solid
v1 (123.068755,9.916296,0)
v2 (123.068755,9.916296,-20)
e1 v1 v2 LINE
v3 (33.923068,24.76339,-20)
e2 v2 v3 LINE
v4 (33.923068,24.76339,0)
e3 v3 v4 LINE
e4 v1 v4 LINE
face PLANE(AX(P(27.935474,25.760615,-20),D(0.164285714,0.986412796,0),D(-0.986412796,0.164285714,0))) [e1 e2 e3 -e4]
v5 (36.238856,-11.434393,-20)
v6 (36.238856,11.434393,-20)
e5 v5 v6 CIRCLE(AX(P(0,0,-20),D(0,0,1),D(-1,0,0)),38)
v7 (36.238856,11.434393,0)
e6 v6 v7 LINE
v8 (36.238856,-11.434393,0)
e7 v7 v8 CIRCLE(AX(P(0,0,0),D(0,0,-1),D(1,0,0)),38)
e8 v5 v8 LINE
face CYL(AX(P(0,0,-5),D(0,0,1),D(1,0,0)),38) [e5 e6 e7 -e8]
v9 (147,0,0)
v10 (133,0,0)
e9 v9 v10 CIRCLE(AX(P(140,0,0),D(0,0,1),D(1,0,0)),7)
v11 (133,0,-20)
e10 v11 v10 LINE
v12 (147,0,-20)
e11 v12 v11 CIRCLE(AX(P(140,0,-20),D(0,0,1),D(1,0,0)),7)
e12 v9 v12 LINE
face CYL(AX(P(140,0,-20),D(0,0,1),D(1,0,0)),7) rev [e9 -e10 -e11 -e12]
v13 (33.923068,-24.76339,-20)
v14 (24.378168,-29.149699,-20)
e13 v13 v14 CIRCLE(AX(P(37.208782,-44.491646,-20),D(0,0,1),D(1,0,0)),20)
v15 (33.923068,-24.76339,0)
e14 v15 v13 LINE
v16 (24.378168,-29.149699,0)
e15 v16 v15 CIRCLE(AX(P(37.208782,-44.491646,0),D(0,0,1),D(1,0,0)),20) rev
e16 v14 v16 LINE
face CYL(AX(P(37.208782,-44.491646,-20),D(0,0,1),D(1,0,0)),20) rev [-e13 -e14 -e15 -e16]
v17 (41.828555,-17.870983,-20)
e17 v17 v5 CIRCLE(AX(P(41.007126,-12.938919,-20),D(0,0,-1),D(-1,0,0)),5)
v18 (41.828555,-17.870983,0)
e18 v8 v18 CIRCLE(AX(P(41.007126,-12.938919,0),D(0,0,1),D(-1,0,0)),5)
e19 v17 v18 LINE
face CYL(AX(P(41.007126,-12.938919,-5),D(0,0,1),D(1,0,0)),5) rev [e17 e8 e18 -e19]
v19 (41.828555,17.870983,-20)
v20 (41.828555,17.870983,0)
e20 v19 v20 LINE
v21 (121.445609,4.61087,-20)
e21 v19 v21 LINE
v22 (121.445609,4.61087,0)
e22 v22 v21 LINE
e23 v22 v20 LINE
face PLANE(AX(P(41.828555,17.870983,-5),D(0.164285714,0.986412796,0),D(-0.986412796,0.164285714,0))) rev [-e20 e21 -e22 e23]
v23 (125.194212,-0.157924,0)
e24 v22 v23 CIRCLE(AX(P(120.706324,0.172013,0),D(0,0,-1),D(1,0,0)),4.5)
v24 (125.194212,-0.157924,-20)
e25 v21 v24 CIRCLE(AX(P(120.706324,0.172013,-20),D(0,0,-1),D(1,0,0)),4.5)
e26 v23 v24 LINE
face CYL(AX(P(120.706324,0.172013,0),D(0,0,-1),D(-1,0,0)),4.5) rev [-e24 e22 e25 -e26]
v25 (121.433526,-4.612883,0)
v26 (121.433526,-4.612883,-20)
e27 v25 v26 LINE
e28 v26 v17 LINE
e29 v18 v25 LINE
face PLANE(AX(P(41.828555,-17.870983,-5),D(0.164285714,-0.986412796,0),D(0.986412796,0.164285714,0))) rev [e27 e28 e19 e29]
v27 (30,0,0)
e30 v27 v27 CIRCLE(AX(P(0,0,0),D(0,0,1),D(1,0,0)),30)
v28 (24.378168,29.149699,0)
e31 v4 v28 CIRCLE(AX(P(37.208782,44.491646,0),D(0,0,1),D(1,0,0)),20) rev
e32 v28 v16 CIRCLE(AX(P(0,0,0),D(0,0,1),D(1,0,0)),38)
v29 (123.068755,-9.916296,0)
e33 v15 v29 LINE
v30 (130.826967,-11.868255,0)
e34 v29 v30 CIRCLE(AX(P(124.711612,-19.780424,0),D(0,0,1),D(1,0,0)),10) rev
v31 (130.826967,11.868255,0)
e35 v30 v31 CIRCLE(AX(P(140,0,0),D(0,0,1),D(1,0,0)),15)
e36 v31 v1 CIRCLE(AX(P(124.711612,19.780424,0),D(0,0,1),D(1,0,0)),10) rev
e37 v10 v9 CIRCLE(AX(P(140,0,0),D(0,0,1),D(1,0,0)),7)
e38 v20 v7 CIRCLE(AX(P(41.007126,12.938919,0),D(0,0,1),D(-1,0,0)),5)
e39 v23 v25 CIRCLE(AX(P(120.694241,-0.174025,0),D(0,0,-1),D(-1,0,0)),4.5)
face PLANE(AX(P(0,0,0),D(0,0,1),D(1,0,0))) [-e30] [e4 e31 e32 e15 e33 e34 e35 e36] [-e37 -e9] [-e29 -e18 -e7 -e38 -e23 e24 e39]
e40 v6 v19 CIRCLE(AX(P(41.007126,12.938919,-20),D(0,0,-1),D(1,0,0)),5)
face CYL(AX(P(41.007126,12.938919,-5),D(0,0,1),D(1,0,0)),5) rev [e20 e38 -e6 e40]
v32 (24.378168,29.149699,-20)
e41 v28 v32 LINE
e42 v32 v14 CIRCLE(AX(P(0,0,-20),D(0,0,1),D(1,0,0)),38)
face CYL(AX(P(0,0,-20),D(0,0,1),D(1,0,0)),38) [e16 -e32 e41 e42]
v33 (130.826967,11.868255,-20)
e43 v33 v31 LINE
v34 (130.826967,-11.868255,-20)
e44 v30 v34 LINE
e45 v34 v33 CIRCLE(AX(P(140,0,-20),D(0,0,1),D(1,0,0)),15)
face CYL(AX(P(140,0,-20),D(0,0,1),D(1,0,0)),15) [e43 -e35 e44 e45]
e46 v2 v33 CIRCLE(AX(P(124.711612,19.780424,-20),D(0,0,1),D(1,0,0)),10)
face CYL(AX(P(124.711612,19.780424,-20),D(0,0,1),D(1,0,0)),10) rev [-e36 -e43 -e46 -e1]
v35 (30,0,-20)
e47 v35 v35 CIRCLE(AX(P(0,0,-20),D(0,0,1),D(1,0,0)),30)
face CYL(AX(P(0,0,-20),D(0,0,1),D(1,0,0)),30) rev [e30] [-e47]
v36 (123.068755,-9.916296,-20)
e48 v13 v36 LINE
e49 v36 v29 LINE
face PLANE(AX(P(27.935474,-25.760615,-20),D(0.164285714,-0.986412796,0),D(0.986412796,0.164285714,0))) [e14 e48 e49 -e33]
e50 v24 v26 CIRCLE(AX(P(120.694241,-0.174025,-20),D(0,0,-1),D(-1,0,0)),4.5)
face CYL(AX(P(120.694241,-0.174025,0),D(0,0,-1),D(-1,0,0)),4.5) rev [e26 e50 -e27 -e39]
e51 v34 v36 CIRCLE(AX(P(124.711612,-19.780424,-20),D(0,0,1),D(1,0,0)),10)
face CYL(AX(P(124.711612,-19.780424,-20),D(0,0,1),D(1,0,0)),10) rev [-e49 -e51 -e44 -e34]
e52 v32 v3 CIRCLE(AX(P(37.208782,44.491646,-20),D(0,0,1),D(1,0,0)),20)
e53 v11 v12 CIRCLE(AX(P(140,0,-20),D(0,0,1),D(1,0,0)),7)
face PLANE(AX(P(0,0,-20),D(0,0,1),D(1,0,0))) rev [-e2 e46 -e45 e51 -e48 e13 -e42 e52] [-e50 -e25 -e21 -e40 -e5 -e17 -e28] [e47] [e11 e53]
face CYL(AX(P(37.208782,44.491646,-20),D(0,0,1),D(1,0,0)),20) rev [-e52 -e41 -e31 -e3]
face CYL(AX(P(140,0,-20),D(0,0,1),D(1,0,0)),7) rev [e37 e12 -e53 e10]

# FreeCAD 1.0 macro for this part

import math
import FreeCAD as App
import Part
import Sketcher

V = App.Vector


def edges_at(feature, points):
    """Names of the edges that pass closest to the given points."""
    edges = feature.Shape.Edges
    near = lambda p: min(range(len(edges)), key=lambda i: edges[i].distToShape(Part.Vertex(*p))[0])
    return sorted({f"Edge{near(p) + 1}" for p in points})

doc = App.newDocument("Part")
params = doc.addObject("Spreadsheet::Sheet", "Params")
for row, (alias, value) in enumerate([
    ("sketch1_diameter", "14 mm"),
    ("sketch1_diameter2", "60 mm"),
    ("sketch1_radius", "38 mm"),
    ("sketch1_radius2", "15 mm"),
    ("pad1_length", "20 mm"),
    ("fillet_radius", "10 mm"),
    ("fillet2_radius", "20 mm"),
    ("sketch2_radius", "5 mm"),
    ("sketch2_radius2", "38 mm"),
    ("sketch2_radius3", "4.5 mm"),
    ("pocket1_length", "5 mm"),
    ("sketch3_radius", "5 mm"),
    ("sketch3_radius2", "38 mm"),
    ("sketch3_radius3", "4.5 mm"),
], start=1):
    params.set(f"A{row}", alias)
    params.set(f"B{row}", "=" + value)
    params.setAlias(f"B{row}", alias)

body = doc.addObject("PartDesign::Body", "Body")

# Sketch on XY plane
sketch1 = doc.addObject("Sketcher::SketchObject", "Sketch")
body.addObject(sketch1)
sketch1.AttachmentSupport = (doc.XY_Plane, [""])
sketch1.MapMode = "FlatFace"
sketch1.addGeometry([
    Part.LineSegment(V(128.063755, 9.084386, 0), V(27.935474, 25.760615, 0)),  # 0
    Part.ArcOfCircle(Part.Circle(V(0, 0, 0), V(0, 0, 1), 38), math.radians(42.680611), math.radians(317.319389)),  # 1
    Part.LineSegment(V(27.935474, -25.760615, 0), V(128.063755, -9.084386, 0)),  # 2
    Part.ArcOfCircle(Part.Circle(V(140, 0, 0), V(0, 0, 1), 15), math.radians(-142.726118), math.radians(142.726118)),  # 3
    Part.Circle(V(140, 0, 0), V(0, 0, 1), 7),  # 4
    Part.Circle(V(0, 0, 0), V(0, 0, 1), 30),  # 5
], False)
sketch1.addConstraint([
    Sketcher.Constraint("Coincident", 0, 2, 1, 1),
    Sketcher.Constraint("Coincident", 1, 2, 2, 1),
    Sketcher.Constraint("Coincident", 2, 2, 3, 1),
    Sketcher.Constraint("Coincident", 3, 2, 0, 1),
    Sketcher.Constraint("Coincident", 1, 3, -1, 1),
    Sketcher.Constraint("Coincident", 5, 3, -1, 1),
    Sketcher.Constraint("Coincident", 4, 3, 3, 3),
    Sketcher.Constraint("Symmetric", 2, 2, 3, 2, -1),
    Sketcher.Constraint("Vertical", 0, 2, 1, 2),
    Sketcher.Constraint("Diameter", 4, 14.0),
    Sketcher.Constraint("Diameter", 5, 60.0),
    Sketcher.Constraint("Radius", 1, 38.0),
    Sketcher.Constraint("Radius", 3, 15.0),
    Sketcher.Constraint("DistanceX", -1, 1, 3, 3, 140.0),
    Sketcher.Constraint("DistanceY", 2, 2, 0, 2, 34.845001),
    Sketcher.Constraint("DistanceY", 1, 2, 0, 2, 51.521231),
])
sketch1.setExpression("Constraints[9]", "Params.sketch1_diameter")
sketch1.setExpression("Constraints[10]", "Params.sketch1_diameter2")
sketch1.setExpression("Constraints[11]", "Params.sketch1_radius")
sketch1.setExpression("Constraints[12]", "Params.sketch1_radius2")
pad1 = doc.addObject("PartDesign::Pad", "Pad")
body.addObject(pad1)
pad1.Profile = sketch1
pad1.setExpression("Length", "Params.pad1_length")
pad1.Reversed = True
doc.recompute()

fillet = doc.addObject("PartDesign::Fillet", "Fillet")
body.addObject(fillet)
fillet.Base = (pad1, edges_at(pad1, [(128.064, 9.084, -10), (128.064, -9.084, -10)]))
fillet.setExpression("Radius", "Params.fillet_radius")
doc.recompute()

fillet2 = doc.addObject("PartDesign::Fillet", "Fillet001")
body.addObject(fillet2)
fillet2.Base = (fillet, edges_at(fillet, [(27.935, 25.761, -10), (27.935, -25.761, -10)]))
fillet2.setExpression("Radius", "Params.fillet2_radius")

# Sketch on XY plane
sketch2 = doc.addObject("Sketcher::SketchObject", "Sketch001")
body.addObject(sketch2)
sketch2.AttachmentSupport = (doc.XY_Plane, [""])
sketch2.MapMode = "FlatFace"
sketch2.addGeometry([
    Part.LineSegment(V(121.046941, 4.677268, 0), V(41.828555, 17.870983, 0)),  # 0
    Part.ArcOfCircle(Part.Circle(V(41.007126, 12.938919, 0), V(0, 0, 1), 5), math.radians(80.544257), math.radians(197.511973)),  # 1
    Part.ArcOfCircle(Part.Circle(V(0, 0, 0), V(0, 0, 1), 38), math.radians(-17.511973), math.radians(17.511973)),  # 2
    Part.ArcOfCircle(Part.Circle(V(41.007126, -12.938919, 0), V(0, 0, 1), 5), math.radians(162.488027), math.radians(279.455743)),  # 3
    Part.LineSegment(V(41.828555, -17.870983, 0), V(121.071834, -4.673122, 0)),  # 4
    Part.ArcOfCircle(Part.Circle(V(120.332548, -0.234264, 0), V(0, 0, 1), 4.5), math.radians(-80.544257), math.radians(6.029349)),  # 5
    Part.ArcOfCircle(Part.Circle(V(120.307655, 0.23841, 0), V(0, 0, 1), 4.5), math.radians(-0.000054), math.radians(80.544257)),  # 6
], False)
sketch2.addConstraint([
    Sketcher.Constraint("Tangent", 0, 2, 1, 1),
    Sketcher.Constraint("Tangent", 1, 2, 2, 2),
    Sketcher.Constraint("Tangent", 2, 1, 3, 1),
    Sketcher.Constraint("Tangent", 3, 2, 4, 1),
    Sketcher.Constraint("Tangent", 4, 2, 5, 1),
    Sketcher.Constraint("Coincident", 5, 2, 6, 1),
    Sketcher.Constraint("Tangent", 6, 2, 0, 1),
    Sketcher.Constraint("Coincident", 2, 3, -1, 1),
    Sketcher.Constraint("Equal", 1, 3),
    Sketcher.Constraint("Equal", 5, 6),
    Sketcher.Constraint("Symmetric", 0, 2, 3, 2, -1),
    Sketcher.Constraint("Radius", 1, 5.0),
    Sketcher.Constraint("Radius", 2, 38.0),
    Sketcher.Constraint("Radius", 5, 4.5),
    Sketcher.Constraint("DistanceY", 3, 3, 0, 2, 30.809901),
    Sketcher.Constraint("DistanceX", 0, 2, 6, 3, 78.4791),
    Sketcher.Constraint("DistanceX", 1, 2, 0, 2, 5.589699),
    Sketcher.Constraint("DistanceX", -1, 1, 5, 3, 120.332548),
])
sketch2.setExpression("Constraints[11]", "Params.sketch2_radius")
sketch2.setExpression("Constraints[12]", "Params.sketch2_radius2")
sketch2.setExpression("Constraints[13]", "Params.sketch2_radius3")
pocket1 = doc.addObject("PartDesign::Pocket", "Pocket")
body.addObject(pocket1)
pocket1.Profile = sketch2
pocket1.setExpression("Length", "Params.pocket1_length")

# Sketch on XY plane
sketch3 = doc.addObject("Sketcher::SketchObject", "Sketch002")
body.addObject(sketch3)
sketch3.AttachmentSupport = (doc.XY_Plane, [""])
sketch3.MapMode = "FlatFace"
sketch3.AttachmentOffset = App.Placement(V(0, 0, -20), App.Rotation())
sketch3.addGeometry([
    Part.LineSegment(V(41.828555, 17.870983, 0), V(121.445609, 4.61087, 0)),  # 0
    Part.ArcOfCircle(Part.Circle(V(120.706324, 0.172013, 0), V(0, 0, 1), 4.5), math.radians(-4.204662), math.radians(80.544257)),  # 1
    Part.ArcOfCircle(Part.Circle(V(120.694241, -0.174025, 0), V(0, 0, 1), 4.5), math.radians(-80.544257), math.radians(0.204999)),  # 2
    Part.LineSegment(V(121.433526, -4.612883, 0), V(41.828555, -17.870983, 0)),  # 3
    Part.ArcOfCircle(Part.Circle(V(41.007126, -12.938919, 0), V(0, 0, 1), 5), math.radians(162.488027), math.radians(279.455743)),  # 4
    Part.ArcOfCircle(Part.Circle(V(0, 0, 0), V(0, 0, 1), 38), math.radians(-17.511973), math.radians(17.511973)),  # 5
    Part.ArcOfCircle(Part.Circle(V(41.007126, 12.938919, 0), V(0, 0, 1), 5), math.radians(80.544257), math.radians(197.511973)),  # 6
], False)
sketch3.addConstraint([
    Sketcher.Constraint("Tangent", 0, 2, 1, 2),
    Sketcher.Constraint("Coincident", 1, 1, 2, 2),
    Sketcher.Constraint("Tangent", 2, 1, 3, 1),
    Sketcher.Constraint("Tangent", 3, 2, 4, 2),
    Sketcher.Constraint("Tangent", 4, 1, 5, 1),
    Sketcher.Constraint("Tangent", 5, 2, 6, 2),
    Sketcher.Constraint("Tangent", 6, 1, 0, 1),
    Sketcher.Constraint("Coincident", 5, 3, -1, 1),
    Sketcher.Constraint("Equal", 1, 2),
    Sketcher.Constraint("Equal", 4, 6),
    Sketcher.Constraint("Symmetric", 3, 2, 6, 1, -1),
    Sketcher.Constraint("Radius", 4, 5.0),
    Sketcher.Constraint("Radius", 5, 38.0),
    Sketcher.Constraint("Radius", 1, 4.5),
    Sketcher.Constraint("DistanceY", 2, 3, 1, 1, 0.016101),
    Sketcher.Constraint("DistanceX", 4, 3, 2, 1, 80.4264),
    Sketcher.Constraint("DistanceY", 3, 2, 6, 3, 30.809901),
    Sketcher.Constraint("DistanceY", 3, 2, 2, 1, 13.2581),
])
sketch3.setExpression("Constraints[11]", "Params.sketch3_radius")
sketch3.setExpression("Constraints[12]", "Params.sketch3_radius2")
sketch3.setExpression("Constraints[13]", "Params.sketch3_radius3")
pocket2 = doc.addObject("PartDesign::Pocket", "Pocket001")
body.addObject(pocket2)
pocket2.Profile = sketch3
pocket2.Type = "ThroughAll"
pocket2.Reversed = True

doc.recompute()
